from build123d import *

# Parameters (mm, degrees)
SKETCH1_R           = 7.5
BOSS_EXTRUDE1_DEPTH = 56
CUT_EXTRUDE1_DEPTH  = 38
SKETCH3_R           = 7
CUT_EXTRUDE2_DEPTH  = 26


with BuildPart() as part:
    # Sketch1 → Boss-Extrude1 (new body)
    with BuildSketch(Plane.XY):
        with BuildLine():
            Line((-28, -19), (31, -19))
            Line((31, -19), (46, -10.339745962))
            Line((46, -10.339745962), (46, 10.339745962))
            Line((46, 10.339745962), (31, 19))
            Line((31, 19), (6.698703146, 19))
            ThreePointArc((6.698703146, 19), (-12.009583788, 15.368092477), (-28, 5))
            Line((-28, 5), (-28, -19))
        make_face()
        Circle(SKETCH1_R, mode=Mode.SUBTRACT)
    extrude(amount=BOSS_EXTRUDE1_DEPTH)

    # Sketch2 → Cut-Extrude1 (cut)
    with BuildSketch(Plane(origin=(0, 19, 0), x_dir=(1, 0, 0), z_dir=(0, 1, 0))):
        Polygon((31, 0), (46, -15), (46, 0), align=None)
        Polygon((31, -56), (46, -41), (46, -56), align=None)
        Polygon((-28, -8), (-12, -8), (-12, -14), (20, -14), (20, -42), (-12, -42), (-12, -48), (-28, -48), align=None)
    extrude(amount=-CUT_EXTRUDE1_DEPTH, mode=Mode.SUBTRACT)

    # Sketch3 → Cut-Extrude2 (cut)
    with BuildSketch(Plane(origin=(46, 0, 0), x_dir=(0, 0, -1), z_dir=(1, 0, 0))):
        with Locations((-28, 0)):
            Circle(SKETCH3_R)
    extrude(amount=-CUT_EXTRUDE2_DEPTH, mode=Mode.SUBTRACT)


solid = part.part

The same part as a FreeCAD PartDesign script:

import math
import FreeCAD as App
import Part
import Sketcher
from FreeCAD import Vector
Q = App.Units.Quantity


def add_polygon(sketch, points):
    """Adds a closed chain of lines whose ends are joined by coincident constraints."""
    first, n = sketch.GeometryCount, len(points)
    for a, b in zip(points, points[1:] + points[:1]):
        sketch.addGeometry(Part.LineSegment(App.Vector(*a, 0), App.Vector(*b, 0)), False)
    for i in range(n):
        sketch.addConstraint(Sketcher.Constraint("Coincident", first + i, 2, first + (i + 1) % n, 1))

doc = App.newDocument("Part")
body = doc.addObject("PartDesign::Body", "Body")

# Sketch on XY plane
sketch1 = body.newObject("Sketcher::SketchObject", "Sketch")
sketch1.AttachmentSupport = (doc.getObject("XY_Plane"), [""])
sketch1.MapMode = "FlatFace"
sketch1.addGeometry([
    Part.LineSegment(Vector(-28, -19, 0), Vector(31, -19, 0)),  # 0
    Part.LineSegment(Vector(31, -19, 0), Vector(46, -10.339746, 0)),  # 1
    Part.LineSegment(Vector(46, -10.339746, 0), Vector(46, 10.339746, 0)),  # 2
    Part.LineSegment(Vector(46, 10.339746, 0), Vector(31, 19, 0)),  # 3
    Part.LineSegment(Vector(31, 19, 0), Vector(6.698703, 19, 0)),  # 4
    Part.ArcOfCircle(Part.Circle(Vector(6.698703, -31, 0), Vector(0, 0, 1), 50), math.radians(90), math.radians(133.94552)),  # 5
    Part.LineSegment(Vector(-28, 5, 0), Vector(-28, -19, 0)),  # 6
    Part.Circle(Vector(0, 0, 0), Vector(0, 0, 1), 7.5),  # 7
], False)
sketch1.addConstraint([
    Sketcher.Constraint("Coincident", 0, 2, 1, 1),
    Sketcher.Constraint("Coincident", 1, 2, 2, 1),
    Sketcher.Constraint("Coincident", 2, 2, 3, 1),
    Sketcher.Constraint("Coincident", 3, 2, 4, 1),
    Sketcher.Constraint("Tangent", 4, 2, 5, 1),
    Sketcher.Constraint("Coincident", 5, 2, 6, 1),
    Sketcher.Constraint("Coincident", 6, 2, 0, 1),
    Sketcher.Constraint("Horizontal", 0),
    Sketcher.Constraint("Vertical", 2),
    Sketcher.Constraint("Horizontal", 4),
    Sketcher.Constraint("Vertical", 6),
    Sketcher.Constraint("Coincident", 7, 3, -1, 1),
    Sketcher.Constraint("Symmetric", 0, 2, 3, 2, -1),
    Sketcher.Constraint("Equal", 1, 3),
    Sketcher.Constraint("Diameter", 7, 15.0),
    Sketcher.Constraint("Radius", 5, 50.0),
    Sketcher.Constraint("DistanceX", 0, 1, 0, 2, 59.0),
    Sketcher.Constraint("DistanceY", 6, 2, 6, 1, 24.0),
    Sketcher.Constraint("Angle", 1, Q("30 deg")),
    Sketcher.Constraint("DistanceY", 5, 3, -1, 1, 31.0),
    Sketcher.Constraint("DistanceX", -1, 1, 0, 2, 31.0),
    Sketcher.Constraint("DistanceX", -1, 1, 1, 2, 46.0),
])
pad1 = body.newObject("PartDesign::Pad", "Pad")
pad1.Profile = sketch1
pad1.Length = 56

# Sketch on XZ plane
sketch2 = body.newObject("Sketcher::SketchObject", "Sketch001")
sketch2.AttachmentSupport = (doc.getObject("XZ_Plane"), [""])
sketch2.MapMode = "FlatFace"
sketch2.AttachmentOffset = App.Placement(Vector(0, 0, -19), App.Rotation())
add_polygon(sketch2, [(31, 0), (46, 15), (46, 0)])  # lines 0-2
add_polygon(sketch2, [(46, 41), (31, 56), (46, 56)])  # lines 3-5
add_polygon(sketch2, [(-12, 8), (-28, 8), (-28, 48), (-12, 48), (-12, 42), (20, 42), (20, 14), (-12, 14)])  # lines 6-13
sketch2.addConstraint([
    Sketcher.Constraint("Vertical", 1),
    Sketcher.Constraint("Horizontal", 2),
    Sketcher.Constraint("Horizontal", 4),
    Sketcher.Constraint("Vertical", 5),
    Sketcher.Constraint("Horizontal", 6),
    Sketcher.Constraint("Vertical", 7),
    Sketcher.Constraint("Horizontal", 8),
    Sketcher.Constraint("Vertical", 9),
    Sketcher.Constraint("Horizontal", 10),
    Sketcher.Constraint("Vertical", 11),
    Sketcher.Constraint("Horizontal", 12),
    Sketcher.Constraint("Vertical", 13),
    Sketcher.Constraint("PointOnObject", 1, 2, -1),
    Sketcher.Constraint("Perpendicular", 0, 3),
    Sketcher.Constraint("Vertical", 2, 2, 3, 2),
    Sketcher.Constraint("Vertical", 1, 2, 4, 2),
    Sketcher.Constraint("Vertical", 9, 2, 12, 2),
    Sketcher.Constraint("Equal", 4, 1),
    Sketcher.Constraint("Equal", 9, 13),
    Sketcher.Constraint("DistanceX", 2, 2, 2, 1, 15.0),
    Sketcher.Constraint("DistanceX", 6, 2, 6, 1, 16.0),
    Sketcher.Constraint("DistanceX", 10, 1, 10, 2, 32.0),
    Sketcher.Constraint("DistanceY", 7, 1, 7, 2, 40.0),
    Sketcher.Constraint("DistanceY", 9, 2, 9, 1, 6.0),
    Sketcher.Constraint("DistanceX", -1, 1, 0, 2, 46.0),
    Sketcher.Constraint("DistanceY", -1, 1, 3, 2, 56.0),
    Sketcher.Constraint("DistanceX", 6, 2, -1, 1, 28.0),
    Sketcher.Constraint("DistanceY", -1, 1, 6, 2, 8.0),
])
pocket1 = body.newObject("PartDesign::Pocket", "Pocket")
pocket1.Profile = sketch2
pocket1.Length = 38
pocket1.Reversed = True

# Sketch on YZ plane
sketch3 = body.newObject("Sketcher::SketchObject", "Sketch002")
sketch3.AttachmentSupport = (doc.getObject("YZ_Plane"), [""])
sketch3.MapMode = "FlatFace"
sketch3.AttachmentOffset = App.Placement(Vector(0, 0, 46), App.Rotation())
sketch3.addGeometry(Part.Circle(Vector(0, 28, 0), Vector(0, 0, 1), 7), False)
sketch3.addConstraint([
    Sketcher.Constraint("PointOnObject", 0, 3, -2),
    Sketcher.Constraint("Diameter", 0, 14.0),
    Sketcher.Constraint("DistanceY", -1, 1, 0, 3, 28.0),
])
pocket2 = body.newObject("PartDesign::Pocket", "Pocket001")
pocket2.Profile = sketch3
pocket2.Length = 26

doc.recompute()
